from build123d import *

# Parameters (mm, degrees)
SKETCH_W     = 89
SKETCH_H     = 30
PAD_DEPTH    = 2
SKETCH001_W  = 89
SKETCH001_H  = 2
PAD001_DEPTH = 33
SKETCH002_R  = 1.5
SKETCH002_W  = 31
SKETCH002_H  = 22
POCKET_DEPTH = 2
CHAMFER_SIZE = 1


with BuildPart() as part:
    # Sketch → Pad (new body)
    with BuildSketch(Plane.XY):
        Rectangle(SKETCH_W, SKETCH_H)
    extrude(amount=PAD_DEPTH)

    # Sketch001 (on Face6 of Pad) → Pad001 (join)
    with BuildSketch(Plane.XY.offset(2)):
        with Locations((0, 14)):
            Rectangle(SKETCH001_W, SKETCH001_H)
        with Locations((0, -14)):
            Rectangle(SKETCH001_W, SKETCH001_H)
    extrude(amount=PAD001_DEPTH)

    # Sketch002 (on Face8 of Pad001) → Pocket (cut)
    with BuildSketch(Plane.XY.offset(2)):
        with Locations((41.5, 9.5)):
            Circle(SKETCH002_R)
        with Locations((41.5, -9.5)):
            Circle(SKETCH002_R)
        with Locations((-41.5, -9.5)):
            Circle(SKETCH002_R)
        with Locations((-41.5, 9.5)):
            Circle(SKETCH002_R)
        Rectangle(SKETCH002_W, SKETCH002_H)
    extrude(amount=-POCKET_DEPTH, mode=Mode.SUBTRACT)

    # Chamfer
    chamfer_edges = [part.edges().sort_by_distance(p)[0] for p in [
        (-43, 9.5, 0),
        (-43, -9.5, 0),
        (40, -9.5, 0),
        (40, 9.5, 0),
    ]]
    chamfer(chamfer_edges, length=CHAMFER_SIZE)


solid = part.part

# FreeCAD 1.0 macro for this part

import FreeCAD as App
import Part
import Sketcher
Q = App.Units.Quantity


def edges_at(feature, points):
    """Names of the edges that pass closest to the given points."""
    edges = feature.Shape.Edges
    near = lambda p: min(range(len(edges)), key=lambda i: edges[i].distToShape(Part.Vertex(*p))[0])
    return sorted({f"Edge{near(p) + 1}" for p in points})


def add_polygon(sketch, points):
    """Adds a closed chain of lines whose ends are joined by coincident constraints."""
    first, n = sketch.GeometryCount, len(points)
    for a, b in zip(points, points[1:] + points[:1]):
        sketch.addGeometry(Part.LineSegment(App.Vector(*a, 0), App.Vector(*b, 0)), False)
    for i in range(n):
        sketch.addConstraint(Sketcher.Constraint("Coincident", first + i, 2, first + (i + 1) % n, 1))

doc = App.newDocument("Part")
params = doc.addObject("Spreadsheet::Sheet", "Params")
for row, (alias, value) in enumerate([
    ("sketch1_width", "89 mm"),
    ("sketch1_height", "30 mm"),
    ("pad1_length", "2 mm"),
    ("sketch2_width", "89 mm"),
    ("sketch2_height", "2 mm"),
    ("pad2_length", "33 mm"),
    ("sketch3_diameter", "3 mm"),
    ("sketch3_width", "31 mm"),
    ("sketch3_height", "22 mm"),
    ("pocket1_length", "2 mm"),
    ("chamfer_size", "1 mm"),
], start=1):
    params.set(f"A{row}", alias)
    params.set(f"B{row}", "=" + value)
    params.setAlias(f"B{row}", alias)

body = doc.addObject("PartDesign::Body", "Body")

# Sketch on XY plane
sketch1 = doc.addObject("Sketcher::SketchObject", "Sketch")
body.addObject(sketch1)
sketch1.AttachmentSupport = (doc.XY_Plane, [""])
sketch1.MapMode = "FlatFace"
add_polygon(sketch1, [(-44, 15), (-44, -15), (44, -15), (44, 15)])  # lines 0-3
sketch1.addConstraint([
    Sketcher.Constraint("Vertical", 0),
    Sketcher.Constraint("Horizontal", 1),
    Sketcher.Constraint("Vertical", 2),
    Sketcher.Constraint("Horizontal", 3),
    Sketcher.Constraint("Symmetric", 0, 2, 2, 2, -1, 1),
    Sketcher.Constraint("DistanceX", 1, 1, 1, 2, Q("89 mm")),
    Sketcher.Constraint("DistanceY", 0, 2, 0, 1, Q("30 mm")),
])
sketch1.setExpression("Constraints[9]", "Params.sketch1_width")
sketch1.setExpression("Constraints[10]", "Params.sketch1_height")
pad1 = doc.addObject("PartDesign::Pad", "Pad")
body.addObject(pad1)
pad1.Profile = sketch1
pad1.setExpression("Length", "Params.pad1_length")

# Sketch on XY plane
sketch2 = doc.addObject("Sketcher::SketchObject", "Sketch001")
body.addObject(sketch2)
sketch2.AttachmentSupport = (doc.XY_Plane, [""])
sketch2.MapMode = "FlatFace"
sketch2.AttachmentOffset = App.Placement(App.Vector(0, 0, 2), App.Rotation())
add_polygon(sketch2, [(-44.5, 15), (-44.5, 13), (44.5, 13), (44.5, 15)])  # lines 0-3
add_polygon(sketch2, [(-44.5, -13), (-44.5, -15), (44.5, -15), (44.5, -13)])  # lines 4-7
sketch2.addConstraint([
    Sketcher.Constraint("Vertical", 0),
    Sketcher.Constraint("Horizontal", 1),
    Sketcher.Constraint("Vertical", 2),
    Sketcher.Constraint("Horizontal", 3),
    Sketcher.Constraint("Vertical", 4),
    Sketcher.Constraint("Horizontal", 5),
    Sketcher.Constraint("Vertical", 6),
    Sketcher.Constraint("Horizontal", 7),
    Sketcher.Constraint("Symmetric", 2, 2, 4, 2, -1, 1),
    Sketcher.Constraint("Symmetric", 0, 2, 6, 2, -1, 1),
    Sketcher.Constraint("Vertical", 3, 2, 4, 2),
    Sketcher.Constraint("DistanceX", 1, 1, 1, 2, Q("89 mm")),
    Sketcher.Constraint("DistanceY", 0, 2, 0, 1, Q("2 mm")),
    Sketcher.Constraint("DistanceY", -1, 1, 0, 2, Q("13 mm")),
])
sketch2.setExpression("Constraints[19]", "Params.sketch2_width")
sketch2.setExpression("Constraints[20]", "Params.sketch2_height")
pad2 = doc.addObject("PartDesign::Pad", "Pad001")
body.addObject(pad2)
pad2.Profile = sketch2
pad2.setExpression("Length", "Params.pad2_length")

# Sketch on XY plane
sketch3 = doc.addObject("Sketcher::SketchObject", "Sketch002")
body.addObject(sketch3)
sketch3.AttachmentSupport = (doc.XY_Plane, [""])
sketch3.MapMode = "FlatFace"
sketch3.AttachmentOffset = App.Placement(App.Vector(0, 0, 2), App.Rotation())
sketch3.addGeometry(Part.Circle(App.Vector(41.5, 9.5, 0), App.Vector(0, 0, 1), 1.5), False)  # 0
sketch3.addGeometry(Part.Circle(App.Vector(41.5, -9.5, 0), App.Vector(0, 0, 1), 1.5), False)  # 1
sketch3.addGeometry(Part.Circle(App.Vector(-41.5, -9.5, 0), App.Vector(0, 0, 1), 1.5), False)  # 2
sketch3.addGeometry(Part.Circle(App.Vector(-41.5, 9.5, 0), App.Vector(0, 0, 1), 1.5), False)  # 3
add_polygon(sketch3, [(-15.5, 11), (-15.5, -11), (15.5, -11), (15.5, 11)])  # lines 4-7
sketch3.addConstraint([
    Sketcher.Constraint("Vertical", 4),
    Sketcher.Constraint("Horizontal", 5),
    Sketcher.Constraint("Vertical", 6),
    Sketcher.Constraint("Horizontal", 7),
    Sketcher.Constraint("Equal", 0, 1),
    Sketcher.Constraint("Equal", 1, 2),
    Sketcher.Constraint("Equal", 2, 3),
    Sketcher.Constraint("Symmetric", 0, 3, 2, 3, -1, 1),
    Sketcher.Constraint("Symmetric", 1, 3, 3, 3, -1, 1),
    Sketcher.Constraint("Symmetric", 4, 2, 6, 2, -1, 1),
    Sketcher.Constraint("Symmetric", 1, 3, 2, 3, -2),
    Sketcher.Constraint("Diameter", 0, Q("3 mm")),
    Sketcher.Constraint("DistanceX", 5, 1, 5, 2, Q("31 mm")),
    Sketcher.Constraint("DistanceY", 4, 2, 4, 1, Q("22 mm")),
    Sketcher.Constraint("DistanceY", 1, 3, 0, 3, Q("19 mm")),
    Sketcher.Constraint("DistanceX", 2, 3, 1, 3, Q("83 mm")),
])
sketch3.setExpression("Constraints[15]", "Params.sketch3_diameter")
sketch3.setExpression("Constraints[16]", "Params.sketch3_width")
sketch3.setExpression("Constraints[17]", "Params.sketch3_height")
pocket1 = doc.addObject("PartDesign::Pocket", "Pocket")
body.addObject(pocket1)
pocket1.Profile = sketch3
pocket1.setExpression("Length", "Params.pocket1_length")
doc.recompute()

chamfer = doc.addObject("PartDesign::Chamfer", "Chamfer")
body.addObject(chamfer)
chamfer.Base = (pocket1, edges_at(pocket1, [
    (-43, 9.5, 0),
    (-43, -9.5, 0),
    (40, -9.5, 0),
    (40, 9.5, 0),
]))
chamfer.setExpression("Size", "Params.chamfer_size")

doc.recompute()
